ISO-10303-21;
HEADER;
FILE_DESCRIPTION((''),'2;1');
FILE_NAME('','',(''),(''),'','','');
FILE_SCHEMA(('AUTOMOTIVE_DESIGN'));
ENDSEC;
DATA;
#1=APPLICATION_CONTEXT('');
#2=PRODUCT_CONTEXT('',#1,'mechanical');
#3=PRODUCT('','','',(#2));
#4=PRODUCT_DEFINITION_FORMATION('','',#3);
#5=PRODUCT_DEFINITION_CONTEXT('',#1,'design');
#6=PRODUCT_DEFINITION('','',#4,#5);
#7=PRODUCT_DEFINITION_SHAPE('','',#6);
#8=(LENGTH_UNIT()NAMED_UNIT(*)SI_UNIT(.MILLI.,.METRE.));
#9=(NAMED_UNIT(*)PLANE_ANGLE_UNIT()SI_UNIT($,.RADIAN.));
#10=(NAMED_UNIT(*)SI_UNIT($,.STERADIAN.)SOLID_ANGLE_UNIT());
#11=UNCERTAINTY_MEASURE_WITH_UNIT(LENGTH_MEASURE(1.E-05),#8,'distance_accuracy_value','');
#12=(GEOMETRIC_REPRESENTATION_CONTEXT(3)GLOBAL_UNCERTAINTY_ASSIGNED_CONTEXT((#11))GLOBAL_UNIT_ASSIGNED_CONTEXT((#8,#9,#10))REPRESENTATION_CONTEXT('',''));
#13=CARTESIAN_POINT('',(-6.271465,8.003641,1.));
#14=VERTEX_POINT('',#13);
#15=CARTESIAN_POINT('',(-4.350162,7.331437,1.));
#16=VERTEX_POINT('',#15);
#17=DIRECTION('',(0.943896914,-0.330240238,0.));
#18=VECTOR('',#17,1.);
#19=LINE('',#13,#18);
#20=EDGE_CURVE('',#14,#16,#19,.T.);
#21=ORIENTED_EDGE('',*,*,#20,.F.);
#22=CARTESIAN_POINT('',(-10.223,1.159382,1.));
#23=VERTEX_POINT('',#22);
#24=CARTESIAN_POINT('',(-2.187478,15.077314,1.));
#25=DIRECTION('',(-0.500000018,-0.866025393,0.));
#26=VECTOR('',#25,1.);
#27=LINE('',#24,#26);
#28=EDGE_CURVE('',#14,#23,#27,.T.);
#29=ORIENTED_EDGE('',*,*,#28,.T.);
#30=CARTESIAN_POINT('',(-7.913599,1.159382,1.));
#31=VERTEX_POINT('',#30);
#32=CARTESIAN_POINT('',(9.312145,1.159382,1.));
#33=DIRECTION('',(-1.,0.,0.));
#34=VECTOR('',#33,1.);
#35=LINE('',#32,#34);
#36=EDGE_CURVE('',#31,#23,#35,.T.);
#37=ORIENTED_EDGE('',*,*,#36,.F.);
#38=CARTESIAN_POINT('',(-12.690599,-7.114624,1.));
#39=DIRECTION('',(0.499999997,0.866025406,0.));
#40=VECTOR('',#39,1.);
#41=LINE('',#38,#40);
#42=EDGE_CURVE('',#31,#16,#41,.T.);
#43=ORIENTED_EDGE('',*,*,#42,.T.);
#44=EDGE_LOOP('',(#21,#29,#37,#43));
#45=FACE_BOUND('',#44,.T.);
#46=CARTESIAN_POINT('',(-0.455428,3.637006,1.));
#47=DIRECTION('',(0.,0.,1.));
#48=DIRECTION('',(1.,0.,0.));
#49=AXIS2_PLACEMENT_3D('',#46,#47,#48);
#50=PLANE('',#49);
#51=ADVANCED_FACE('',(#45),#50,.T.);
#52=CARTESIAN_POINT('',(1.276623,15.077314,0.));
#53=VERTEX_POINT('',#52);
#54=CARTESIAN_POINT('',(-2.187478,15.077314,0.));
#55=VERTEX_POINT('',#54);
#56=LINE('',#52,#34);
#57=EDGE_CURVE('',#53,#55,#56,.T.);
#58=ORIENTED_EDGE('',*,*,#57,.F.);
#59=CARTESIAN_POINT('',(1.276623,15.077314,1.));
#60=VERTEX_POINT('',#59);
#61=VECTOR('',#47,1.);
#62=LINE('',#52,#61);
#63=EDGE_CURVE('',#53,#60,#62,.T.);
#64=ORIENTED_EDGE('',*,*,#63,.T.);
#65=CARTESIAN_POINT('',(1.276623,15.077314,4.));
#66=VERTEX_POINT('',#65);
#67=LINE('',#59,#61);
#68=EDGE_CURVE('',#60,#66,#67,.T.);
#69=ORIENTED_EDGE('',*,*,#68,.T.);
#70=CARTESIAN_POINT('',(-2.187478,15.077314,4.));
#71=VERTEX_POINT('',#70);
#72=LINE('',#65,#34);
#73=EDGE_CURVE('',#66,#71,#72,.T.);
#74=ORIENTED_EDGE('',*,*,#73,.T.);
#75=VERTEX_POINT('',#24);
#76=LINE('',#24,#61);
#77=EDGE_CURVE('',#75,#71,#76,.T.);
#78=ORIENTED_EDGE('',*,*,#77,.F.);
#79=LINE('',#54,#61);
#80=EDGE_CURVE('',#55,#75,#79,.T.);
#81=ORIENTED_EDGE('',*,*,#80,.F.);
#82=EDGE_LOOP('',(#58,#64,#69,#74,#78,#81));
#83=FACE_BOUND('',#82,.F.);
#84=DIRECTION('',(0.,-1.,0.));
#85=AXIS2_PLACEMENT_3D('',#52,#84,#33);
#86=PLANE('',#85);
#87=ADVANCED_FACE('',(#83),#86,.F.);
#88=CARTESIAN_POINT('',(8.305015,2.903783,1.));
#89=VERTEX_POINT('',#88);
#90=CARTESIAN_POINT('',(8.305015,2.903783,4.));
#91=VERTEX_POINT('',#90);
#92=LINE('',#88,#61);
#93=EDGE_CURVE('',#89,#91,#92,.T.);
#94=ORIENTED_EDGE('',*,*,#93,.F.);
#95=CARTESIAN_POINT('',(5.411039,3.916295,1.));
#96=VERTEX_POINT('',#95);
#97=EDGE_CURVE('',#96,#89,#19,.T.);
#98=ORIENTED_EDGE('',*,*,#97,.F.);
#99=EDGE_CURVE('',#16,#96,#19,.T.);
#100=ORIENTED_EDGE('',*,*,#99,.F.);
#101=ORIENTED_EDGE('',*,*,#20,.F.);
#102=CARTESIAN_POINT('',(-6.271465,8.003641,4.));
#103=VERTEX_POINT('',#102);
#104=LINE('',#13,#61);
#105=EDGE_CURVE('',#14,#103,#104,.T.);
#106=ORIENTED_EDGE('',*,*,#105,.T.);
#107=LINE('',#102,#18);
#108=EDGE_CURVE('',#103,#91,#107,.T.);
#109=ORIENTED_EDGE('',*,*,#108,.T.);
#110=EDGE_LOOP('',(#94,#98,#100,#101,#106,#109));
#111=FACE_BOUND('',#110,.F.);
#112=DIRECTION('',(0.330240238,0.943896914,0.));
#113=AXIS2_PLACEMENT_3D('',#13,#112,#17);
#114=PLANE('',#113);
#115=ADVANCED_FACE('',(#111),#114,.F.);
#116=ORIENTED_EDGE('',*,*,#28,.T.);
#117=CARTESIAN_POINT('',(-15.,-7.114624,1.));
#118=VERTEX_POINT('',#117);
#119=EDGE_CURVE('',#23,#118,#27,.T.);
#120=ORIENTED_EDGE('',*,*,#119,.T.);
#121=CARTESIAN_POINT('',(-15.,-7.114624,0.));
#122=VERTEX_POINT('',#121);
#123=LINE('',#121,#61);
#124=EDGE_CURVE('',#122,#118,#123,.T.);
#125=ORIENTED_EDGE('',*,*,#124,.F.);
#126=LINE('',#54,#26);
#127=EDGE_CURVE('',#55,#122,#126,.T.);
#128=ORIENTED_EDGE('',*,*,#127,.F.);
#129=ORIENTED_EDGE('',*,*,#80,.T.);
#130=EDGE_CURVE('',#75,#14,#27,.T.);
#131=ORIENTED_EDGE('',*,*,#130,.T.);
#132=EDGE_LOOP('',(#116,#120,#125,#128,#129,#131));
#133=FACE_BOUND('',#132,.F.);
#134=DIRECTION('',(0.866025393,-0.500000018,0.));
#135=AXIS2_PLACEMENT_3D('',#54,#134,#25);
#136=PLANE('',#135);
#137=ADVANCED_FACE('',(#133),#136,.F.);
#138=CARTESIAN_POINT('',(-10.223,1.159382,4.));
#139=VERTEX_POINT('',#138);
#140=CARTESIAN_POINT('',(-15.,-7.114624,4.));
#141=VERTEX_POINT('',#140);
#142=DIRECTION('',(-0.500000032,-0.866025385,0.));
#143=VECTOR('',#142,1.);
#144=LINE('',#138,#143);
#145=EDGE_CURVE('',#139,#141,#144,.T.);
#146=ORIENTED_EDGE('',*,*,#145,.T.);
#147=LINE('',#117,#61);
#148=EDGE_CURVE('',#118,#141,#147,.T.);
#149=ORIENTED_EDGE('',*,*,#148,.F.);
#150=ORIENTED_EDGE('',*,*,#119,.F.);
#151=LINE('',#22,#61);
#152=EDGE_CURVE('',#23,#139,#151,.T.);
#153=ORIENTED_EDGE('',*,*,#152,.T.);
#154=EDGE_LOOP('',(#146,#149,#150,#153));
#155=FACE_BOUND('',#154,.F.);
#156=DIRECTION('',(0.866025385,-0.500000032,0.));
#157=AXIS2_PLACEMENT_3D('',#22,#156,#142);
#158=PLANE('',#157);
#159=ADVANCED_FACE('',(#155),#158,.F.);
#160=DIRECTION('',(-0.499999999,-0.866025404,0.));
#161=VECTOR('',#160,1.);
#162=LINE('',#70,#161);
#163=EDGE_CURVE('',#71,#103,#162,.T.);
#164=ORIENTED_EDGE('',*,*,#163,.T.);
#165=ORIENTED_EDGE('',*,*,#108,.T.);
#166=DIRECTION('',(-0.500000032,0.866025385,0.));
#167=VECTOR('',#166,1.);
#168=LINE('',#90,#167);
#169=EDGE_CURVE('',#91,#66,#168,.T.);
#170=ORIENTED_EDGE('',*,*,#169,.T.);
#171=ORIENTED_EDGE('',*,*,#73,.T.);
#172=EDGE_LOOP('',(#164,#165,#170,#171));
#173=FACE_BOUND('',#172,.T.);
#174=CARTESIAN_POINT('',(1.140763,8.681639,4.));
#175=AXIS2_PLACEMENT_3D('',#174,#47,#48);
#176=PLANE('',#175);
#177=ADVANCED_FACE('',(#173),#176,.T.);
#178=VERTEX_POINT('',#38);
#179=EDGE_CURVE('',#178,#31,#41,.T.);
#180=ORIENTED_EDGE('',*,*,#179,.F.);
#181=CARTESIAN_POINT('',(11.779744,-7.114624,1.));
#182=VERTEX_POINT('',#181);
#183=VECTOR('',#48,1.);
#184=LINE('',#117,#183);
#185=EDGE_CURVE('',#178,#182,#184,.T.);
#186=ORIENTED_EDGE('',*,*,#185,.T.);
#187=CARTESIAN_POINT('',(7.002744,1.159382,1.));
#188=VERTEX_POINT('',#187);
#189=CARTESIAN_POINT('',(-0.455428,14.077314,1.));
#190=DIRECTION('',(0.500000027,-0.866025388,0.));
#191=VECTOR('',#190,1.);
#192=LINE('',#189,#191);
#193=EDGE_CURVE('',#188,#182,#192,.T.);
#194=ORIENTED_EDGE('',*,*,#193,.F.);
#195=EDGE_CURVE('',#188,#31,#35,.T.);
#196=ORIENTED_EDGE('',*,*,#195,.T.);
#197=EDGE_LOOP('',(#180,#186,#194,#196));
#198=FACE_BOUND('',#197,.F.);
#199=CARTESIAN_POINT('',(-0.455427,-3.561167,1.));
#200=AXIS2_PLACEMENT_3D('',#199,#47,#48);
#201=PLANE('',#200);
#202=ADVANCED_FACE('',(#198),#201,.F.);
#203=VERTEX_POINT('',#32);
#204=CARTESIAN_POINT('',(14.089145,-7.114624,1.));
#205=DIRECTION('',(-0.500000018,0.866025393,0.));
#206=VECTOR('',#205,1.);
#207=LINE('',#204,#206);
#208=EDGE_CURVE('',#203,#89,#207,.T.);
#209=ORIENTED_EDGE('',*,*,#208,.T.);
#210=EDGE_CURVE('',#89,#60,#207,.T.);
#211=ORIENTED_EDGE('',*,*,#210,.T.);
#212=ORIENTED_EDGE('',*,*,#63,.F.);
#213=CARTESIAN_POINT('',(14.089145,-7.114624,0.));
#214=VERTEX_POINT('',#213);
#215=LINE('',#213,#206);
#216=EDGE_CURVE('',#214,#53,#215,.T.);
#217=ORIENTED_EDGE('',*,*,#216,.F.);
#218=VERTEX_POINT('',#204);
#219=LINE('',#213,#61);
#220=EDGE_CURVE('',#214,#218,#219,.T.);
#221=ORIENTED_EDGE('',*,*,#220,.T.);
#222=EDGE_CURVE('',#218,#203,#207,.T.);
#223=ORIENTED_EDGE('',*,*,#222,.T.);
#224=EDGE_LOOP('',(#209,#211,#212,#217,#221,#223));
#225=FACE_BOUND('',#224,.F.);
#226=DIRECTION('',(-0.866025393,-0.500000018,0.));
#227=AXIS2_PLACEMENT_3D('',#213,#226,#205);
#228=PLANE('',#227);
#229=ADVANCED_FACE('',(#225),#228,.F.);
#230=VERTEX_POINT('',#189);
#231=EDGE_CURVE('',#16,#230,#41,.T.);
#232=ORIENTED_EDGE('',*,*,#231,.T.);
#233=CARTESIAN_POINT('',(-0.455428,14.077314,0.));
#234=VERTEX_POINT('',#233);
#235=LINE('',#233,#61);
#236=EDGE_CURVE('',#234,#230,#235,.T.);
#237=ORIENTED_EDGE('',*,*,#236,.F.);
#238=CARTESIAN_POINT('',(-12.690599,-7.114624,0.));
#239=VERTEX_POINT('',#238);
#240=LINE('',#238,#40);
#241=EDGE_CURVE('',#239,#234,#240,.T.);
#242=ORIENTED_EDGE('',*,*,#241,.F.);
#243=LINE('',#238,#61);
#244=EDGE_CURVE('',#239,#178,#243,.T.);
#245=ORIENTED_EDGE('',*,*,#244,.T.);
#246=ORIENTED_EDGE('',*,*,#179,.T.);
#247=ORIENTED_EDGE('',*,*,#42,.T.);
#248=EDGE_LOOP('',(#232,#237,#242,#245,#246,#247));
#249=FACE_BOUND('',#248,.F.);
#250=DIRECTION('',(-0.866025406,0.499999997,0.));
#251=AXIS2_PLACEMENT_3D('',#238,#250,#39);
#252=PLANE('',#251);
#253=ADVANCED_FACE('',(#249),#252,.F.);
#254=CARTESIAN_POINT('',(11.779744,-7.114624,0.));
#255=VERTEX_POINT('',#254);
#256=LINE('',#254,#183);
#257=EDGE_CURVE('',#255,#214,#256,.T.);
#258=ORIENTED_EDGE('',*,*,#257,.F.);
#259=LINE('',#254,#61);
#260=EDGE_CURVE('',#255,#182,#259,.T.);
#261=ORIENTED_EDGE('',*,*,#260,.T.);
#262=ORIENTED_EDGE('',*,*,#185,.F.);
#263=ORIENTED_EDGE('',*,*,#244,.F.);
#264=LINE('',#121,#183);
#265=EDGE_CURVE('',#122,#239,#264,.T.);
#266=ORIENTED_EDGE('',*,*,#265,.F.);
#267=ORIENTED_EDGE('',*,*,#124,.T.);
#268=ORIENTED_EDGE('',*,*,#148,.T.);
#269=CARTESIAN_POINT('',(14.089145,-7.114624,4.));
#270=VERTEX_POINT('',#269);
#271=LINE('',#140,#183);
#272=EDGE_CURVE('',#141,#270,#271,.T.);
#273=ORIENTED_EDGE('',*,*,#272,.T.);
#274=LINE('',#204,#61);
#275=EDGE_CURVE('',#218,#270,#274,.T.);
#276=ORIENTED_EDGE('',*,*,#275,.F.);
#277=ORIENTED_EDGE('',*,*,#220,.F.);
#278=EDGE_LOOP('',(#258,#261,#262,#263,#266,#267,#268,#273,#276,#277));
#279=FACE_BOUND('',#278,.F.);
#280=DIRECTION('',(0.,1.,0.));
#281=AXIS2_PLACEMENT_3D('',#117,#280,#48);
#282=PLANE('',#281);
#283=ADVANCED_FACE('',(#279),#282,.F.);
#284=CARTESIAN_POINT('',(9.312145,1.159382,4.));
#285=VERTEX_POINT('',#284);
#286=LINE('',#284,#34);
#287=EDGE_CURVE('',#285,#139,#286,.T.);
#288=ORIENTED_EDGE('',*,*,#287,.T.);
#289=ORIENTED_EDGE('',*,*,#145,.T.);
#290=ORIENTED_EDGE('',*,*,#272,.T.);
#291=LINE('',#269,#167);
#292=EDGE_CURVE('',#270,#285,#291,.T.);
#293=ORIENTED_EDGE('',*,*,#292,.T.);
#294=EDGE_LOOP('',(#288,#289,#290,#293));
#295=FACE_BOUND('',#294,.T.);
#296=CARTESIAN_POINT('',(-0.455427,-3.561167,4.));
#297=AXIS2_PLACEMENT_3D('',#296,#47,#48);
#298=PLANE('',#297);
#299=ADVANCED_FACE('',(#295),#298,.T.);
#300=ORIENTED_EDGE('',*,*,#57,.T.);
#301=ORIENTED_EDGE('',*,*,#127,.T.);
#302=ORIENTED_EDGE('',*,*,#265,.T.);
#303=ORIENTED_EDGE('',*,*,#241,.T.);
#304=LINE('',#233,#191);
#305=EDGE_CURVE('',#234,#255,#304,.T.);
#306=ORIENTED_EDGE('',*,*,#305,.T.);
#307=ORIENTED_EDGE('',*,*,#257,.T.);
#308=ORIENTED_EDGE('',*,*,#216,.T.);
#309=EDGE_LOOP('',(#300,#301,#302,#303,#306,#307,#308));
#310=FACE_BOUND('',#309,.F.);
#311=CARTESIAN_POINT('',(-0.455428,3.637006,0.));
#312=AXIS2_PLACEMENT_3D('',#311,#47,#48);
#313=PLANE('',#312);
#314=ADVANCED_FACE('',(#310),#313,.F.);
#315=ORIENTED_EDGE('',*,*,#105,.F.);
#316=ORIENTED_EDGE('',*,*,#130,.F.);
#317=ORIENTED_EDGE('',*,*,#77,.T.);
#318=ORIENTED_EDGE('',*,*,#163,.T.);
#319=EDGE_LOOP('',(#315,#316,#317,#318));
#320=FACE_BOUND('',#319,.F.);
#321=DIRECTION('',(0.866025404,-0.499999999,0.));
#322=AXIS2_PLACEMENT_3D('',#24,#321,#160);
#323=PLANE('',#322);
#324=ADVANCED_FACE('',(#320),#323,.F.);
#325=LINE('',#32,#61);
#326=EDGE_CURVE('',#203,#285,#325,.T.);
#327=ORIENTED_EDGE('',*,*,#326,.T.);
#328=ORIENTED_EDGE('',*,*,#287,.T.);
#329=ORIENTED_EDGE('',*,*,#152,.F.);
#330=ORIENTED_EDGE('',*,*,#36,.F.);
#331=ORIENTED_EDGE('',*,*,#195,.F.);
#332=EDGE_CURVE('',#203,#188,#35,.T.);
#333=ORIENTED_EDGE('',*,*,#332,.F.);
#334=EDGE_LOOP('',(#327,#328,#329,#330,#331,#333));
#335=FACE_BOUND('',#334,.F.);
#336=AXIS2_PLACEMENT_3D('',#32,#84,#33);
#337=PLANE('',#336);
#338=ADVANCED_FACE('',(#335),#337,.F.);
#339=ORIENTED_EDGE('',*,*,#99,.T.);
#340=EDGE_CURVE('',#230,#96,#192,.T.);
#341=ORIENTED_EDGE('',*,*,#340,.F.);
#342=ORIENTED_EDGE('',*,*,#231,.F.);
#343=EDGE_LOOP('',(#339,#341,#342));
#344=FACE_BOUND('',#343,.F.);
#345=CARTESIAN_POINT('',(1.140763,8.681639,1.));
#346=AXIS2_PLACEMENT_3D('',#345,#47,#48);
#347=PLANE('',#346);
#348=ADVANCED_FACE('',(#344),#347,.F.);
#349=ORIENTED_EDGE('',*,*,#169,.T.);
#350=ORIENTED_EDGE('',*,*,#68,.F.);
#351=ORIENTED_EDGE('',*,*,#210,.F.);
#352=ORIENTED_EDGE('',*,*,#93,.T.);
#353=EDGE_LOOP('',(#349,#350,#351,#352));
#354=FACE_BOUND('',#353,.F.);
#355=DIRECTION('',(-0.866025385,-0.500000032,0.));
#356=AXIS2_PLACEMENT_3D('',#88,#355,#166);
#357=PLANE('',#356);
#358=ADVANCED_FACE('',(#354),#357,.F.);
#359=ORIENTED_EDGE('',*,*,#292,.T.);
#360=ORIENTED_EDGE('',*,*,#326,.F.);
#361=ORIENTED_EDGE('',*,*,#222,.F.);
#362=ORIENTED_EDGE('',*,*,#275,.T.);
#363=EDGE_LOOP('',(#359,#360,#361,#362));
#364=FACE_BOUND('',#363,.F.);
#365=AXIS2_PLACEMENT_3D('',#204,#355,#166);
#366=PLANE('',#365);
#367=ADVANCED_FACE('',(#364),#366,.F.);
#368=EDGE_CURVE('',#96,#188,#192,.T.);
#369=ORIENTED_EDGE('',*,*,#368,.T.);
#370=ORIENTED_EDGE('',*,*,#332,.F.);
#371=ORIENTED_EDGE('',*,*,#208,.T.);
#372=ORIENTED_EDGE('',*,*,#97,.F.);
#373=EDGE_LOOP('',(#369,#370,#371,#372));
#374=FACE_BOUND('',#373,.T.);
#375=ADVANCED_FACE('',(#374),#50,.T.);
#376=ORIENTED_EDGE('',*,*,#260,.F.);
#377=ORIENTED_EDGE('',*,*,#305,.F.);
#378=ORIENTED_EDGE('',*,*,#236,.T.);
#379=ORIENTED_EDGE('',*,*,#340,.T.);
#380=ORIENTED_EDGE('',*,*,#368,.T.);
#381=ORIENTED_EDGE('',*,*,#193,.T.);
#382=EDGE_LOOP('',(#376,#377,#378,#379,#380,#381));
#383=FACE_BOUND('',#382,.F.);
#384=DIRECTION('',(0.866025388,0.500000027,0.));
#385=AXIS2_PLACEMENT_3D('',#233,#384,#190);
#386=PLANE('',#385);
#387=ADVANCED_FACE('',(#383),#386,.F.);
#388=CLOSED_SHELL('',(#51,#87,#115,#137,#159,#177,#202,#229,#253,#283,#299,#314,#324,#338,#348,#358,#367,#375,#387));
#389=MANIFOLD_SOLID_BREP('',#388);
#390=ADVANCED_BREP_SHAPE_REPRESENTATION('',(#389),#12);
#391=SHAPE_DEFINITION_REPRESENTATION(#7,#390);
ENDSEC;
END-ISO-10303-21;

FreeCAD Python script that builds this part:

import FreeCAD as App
import Part
import Sketcher

V = App.Vector
Q = App.Units.Quantity


def add_polygon(sketch, points):
    """Adds a closed chain of lines whose ends are joined by coincident constraints."""
    first, n = sketch.GeometryCount, len(points)
    for a, b in zip(points, points[1:] + points[:1]):
        sketch.addGeometry(Part.LineSegment(App.Vector(*a, 0), App.Vector(*b, 0)), False)
    for i in range(n):
        sketch.addConstraint(Sketcher.Constraint("Coincident", first + i, 2, first + (i + 1) % n, 1))

doc = App.newDocument("Part")
params = doc.addObject("Spreadsheet::Sheet", "Params")
for row, (alias, value) in enumerate([
    ("pad1_length", "1 mm"),
    ("pad2_length", "3 mm"),
], start=1):
    params.set(f"A{row}", alias)
    params.set(f"B{row}", "=" + value)
    params.setAlias(f"B{row}", alias)

body = doc.addObject("PartDesign::Body", "Body")

sketch1 = body.newObject("Sketcher::SketchObject", "Sketch")
sketch1.AttachmentSupport = (doc.getObject("XY_Plane"), [""])
sketch1.MapMode = "FlatFace"
add_polygon(sketch1, [(-2.2, 15.1), (-15, -7.1), (-12.7, -7.1), (-0.5, 14.1), (11.8, -7.1), (14.1, -7.1), (1.3, 15.1)])
sketch1.addConstraint(Sketcher.Constraint("Horizontal", 1))
sketch1.addConstraint(Sketcher.Constraint("Horizontal", 4))
sketch1.addConstraint(Sketcher.Constraint("Horizontal", 6))
sketch1.addConstraint(Sketcher.Constraint("Parallel", 0, 2))
sketch1.addConstraint(Sketcher.Constraint("Parallel", 3, 5))
sketch1.addConstraint(Sketcher.Constraint("Horizontal", 1, 2, 3, 2))
sketch1.addConstraint(Sketcher.Constraint("Equal", 1, 4))
sketch1.addConstraint(Sketcher.Constraint("Equal", 2, 3))
sketch1.addConstraint(Sketcher.Constraint("Angle", 0, Q("-120.000001 deg")))
sketch1.addConstraint(Sketcher.Constraint("DistanceX", 0, 2, -1, 1, 15.0))
sketch1.addConstraint(Sketcher.Constraint("DistanceY", 2, 2, 5, 2, 1.0))
sketch1.addConstraint(Sketcher.Constraint("DistanceX", 1, 1, 1, 2, 2.309401))
sketch1.addConstraint(Sketcher.Constraint("DistanceX", 6, 2, -1, 1, 2.187478))
sketch1.addConstraint(Sketcher.Constraint("DistanceY", 0, 2, -1, 1, 7.114624))
pad1 = body.newObject("PartDesign::Pad", "Pad")
pad1.Profile = sketch1
pad1.setExpression("Length", "Params.pad1_length")

sketch2 = body.newObject("Sketcher::SketchObject", "Sketch001")
sketch2.AttachmentSupport = (doc.getObject("XY_Plane"), [""])
sketch2.MapMode = "FlatFace"
sketch2.AttachmentOffset = App.Placement(V(0, 0, 1), App.Rotation())
add_polygon(sketch2, [(-10.2, 1.2), (-15, -7.1), (14.1, -7.1), (9.3, 1.2)])
add_polygon(sketch2, [(1.3, 15.1), (-2.2, 15.1), (-6.3, 8), (8.3, 2.9)])
sketch2.addConstraint(Sketcher.Constraint("Horizontal", 1))
sketch2.addConstraint(Sketcher.Constraint("Horizontal", 3))
sketch2.addConstraint(Sketcher.Constraint("Horizontal", 4))
sketch2.addConstraint(Sketcher.Constraint("Parallel", 0, 5))
sketch2.addConstraint(Sketcher.Constraint("Parallel", 2, 7))
sketch2.addConstraint(Sketcher.Constraint("Equal", 0, 2))
sketch2.addConstraint(Sketcher.Constraint("Angle", 0, Q("-120.000002 deg")))
sketch2.addConstraint(Sketcher.Constraint("DistanceX", 0, 2, -1, 1, 15.0))
sketch2.addConstraint(Sketcher.Constraint("Distance", 0, 9.553999))
sketch2.addConstraint(Sketcher.Constraint("DistanceX", 4, 2, 4, 1, 3.464101))
sketch2.addConstraint(Sketcher.Constraint("DistanceY", 2, 2, 6, 2, 1.744401))
sketch2.addConstraint(Sketcher.Constraint("DistanceX", 1, 1, 1, 2, 29.089145))
sketch2.addConstraint(Sketcher.Constraint("DistanceY", -1, 1, 2, 2, 1.159382))
sketch2.addConstraint(Sketcher.Constraint("DistanceX", 4, 2, -1, 1, 2.187478))
sketch2.addConstraint(Sketcher.Constraint("DistanceY", -1, 1, 5, 2, 8.003641))
sketch2.addConstraint(Sketcher.Constraint("DistanceY", 0, 2, 4, 2, 22.191938))
pad2 = body.newObject("PartDesign::Pad", "Pad001")
pad2.Profile = sketch2
pad2.setExpression("Length", "Params.pad2_length")

doc.recompute()
